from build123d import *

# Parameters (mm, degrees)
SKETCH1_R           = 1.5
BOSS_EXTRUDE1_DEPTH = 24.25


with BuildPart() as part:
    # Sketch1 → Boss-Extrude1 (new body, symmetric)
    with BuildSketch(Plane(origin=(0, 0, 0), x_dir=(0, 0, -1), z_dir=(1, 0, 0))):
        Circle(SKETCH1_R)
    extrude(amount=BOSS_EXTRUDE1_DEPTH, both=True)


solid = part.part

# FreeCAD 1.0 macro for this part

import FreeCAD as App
import Part
import Sketcher
from FreeCAD import Vector
Q = App.Units.Quantity

doc = App.newDocument("Part")
params = doc.addObject("Spreadsheet::Sheet", "Params")
for row, (alias, value) in enumerate([
    ("sketch1_diameter", "3 mm"),
    ("pad1_length", "48.5 mm"),
], start=1):
    params.set(f"A{row}", alias)
    params.set(f"B{row}", "=" + value)
    params.setAlias(f"B{row}", alias)

body = doc.addObject("PartDesign::Body", "Body")

sketch1 = body.newObject("Sketcher::SketchObject", "Sketch")
sketch1.AttachmentSupport = (doc.getObject("YZ_Plane"), [""])
sketch1.MapMode = "FlatFace"
sketch1.addGeometry(Part.Circle(Vector(0, 0, 0), Vector(0, 0, 1), 1.5), False)
sketch1.addConstraint(Sketcher.Constraint("Coincident", 0, 3, -1, 1))
sketch1.addConstraint(Sketcher.Constraint("Diameter", 0, Q("3 mm")))
sketch1.setExpression("Constraints[1]", "Params.sketch1_diameter")
pad1 = body.newObject("PartDesign::Pad", "Pad")
pad1.Profile = sketch1
pad1.setExpression("Length", "Params.pad1_length")
pad1.Midplane = True

doc.recompute()
